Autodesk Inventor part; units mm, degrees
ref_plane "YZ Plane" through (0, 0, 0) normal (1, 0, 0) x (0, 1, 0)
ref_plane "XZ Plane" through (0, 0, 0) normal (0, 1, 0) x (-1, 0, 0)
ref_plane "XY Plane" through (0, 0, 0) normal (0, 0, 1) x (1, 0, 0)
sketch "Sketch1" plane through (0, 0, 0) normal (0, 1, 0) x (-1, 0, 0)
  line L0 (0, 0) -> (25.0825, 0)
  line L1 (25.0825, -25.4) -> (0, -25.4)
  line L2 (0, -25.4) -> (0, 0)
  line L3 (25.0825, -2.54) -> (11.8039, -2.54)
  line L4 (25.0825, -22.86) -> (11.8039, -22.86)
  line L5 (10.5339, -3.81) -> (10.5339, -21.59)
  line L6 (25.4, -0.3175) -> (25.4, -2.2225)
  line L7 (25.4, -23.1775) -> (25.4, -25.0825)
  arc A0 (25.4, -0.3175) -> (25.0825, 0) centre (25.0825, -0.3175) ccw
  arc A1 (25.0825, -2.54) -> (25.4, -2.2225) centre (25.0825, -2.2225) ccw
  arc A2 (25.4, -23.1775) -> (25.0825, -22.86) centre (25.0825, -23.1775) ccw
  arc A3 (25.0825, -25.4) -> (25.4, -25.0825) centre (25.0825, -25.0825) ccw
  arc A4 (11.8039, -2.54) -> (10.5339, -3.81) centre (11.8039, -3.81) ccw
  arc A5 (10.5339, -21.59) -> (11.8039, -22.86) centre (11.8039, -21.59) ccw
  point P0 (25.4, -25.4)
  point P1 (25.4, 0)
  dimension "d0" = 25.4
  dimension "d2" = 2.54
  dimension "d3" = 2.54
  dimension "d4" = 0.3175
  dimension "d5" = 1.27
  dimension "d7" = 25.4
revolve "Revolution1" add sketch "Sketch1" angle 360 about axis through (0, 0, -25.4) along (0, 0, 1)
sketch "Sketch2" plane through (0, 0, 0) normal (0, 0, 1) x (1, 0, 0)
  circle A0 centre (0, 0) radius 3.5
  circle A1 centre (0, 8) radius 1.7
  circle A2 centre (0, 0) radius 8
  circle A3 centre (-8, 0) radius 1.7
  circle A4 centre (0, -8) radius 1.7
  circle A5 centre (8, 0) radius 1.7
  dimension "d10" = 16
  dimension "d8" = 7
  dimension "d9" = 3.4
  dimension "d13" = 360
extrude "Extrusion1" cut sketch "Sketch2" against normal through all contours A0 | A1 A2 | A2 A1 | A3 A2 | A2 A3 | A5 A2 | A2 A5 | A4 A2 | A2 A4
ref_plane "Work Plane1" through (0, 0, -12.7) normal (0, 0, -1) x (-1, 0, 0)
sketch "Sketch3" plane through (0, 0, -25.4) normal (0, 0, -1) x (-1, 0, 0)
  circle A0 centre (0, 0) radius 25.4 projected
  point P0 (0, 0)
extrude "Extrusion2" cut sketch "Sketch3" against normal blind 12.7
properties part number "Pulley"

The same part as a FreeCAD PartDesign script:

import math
import FreeCAD as App
import Part
import Sketcher

V = App.Vector
Q = App.Units.Quantity

doc = App.newDocument("Part")
params = doc.addObject("Spreadsheet::Sheet", "Params")
for row, (alias, value) in enumerate([
    ("sketch1_height", "1 in"),
    ("sketch1_radius", "0.05 in"),
    ("revolution_angle", "360 deg"),
    ("sketch3_diameter", "2 in"),
    ("pocket2_length", "0.5 in"),
], start=1):
    params.set(f"A{row}", alias)
    params.set(f"B{row}", "=" + value)
    params.setAlias(f"B{row}", alias)

body = doc.addObject("PartDesign::Body", "Body")

# Sketch on XZ plane
sketch1 = doc.addObject("Sketcher::SketchObject", "Sketch")
body.addObject(sketch1)
sketch1.AttachmentSupport = (doc.XZ_Plane, [""])
sketch1.MapMode = "FlatFace"
sketch1.addGeometry(Part.LineSegment(V(-25.08, 0, 0), V(0, 0, 0)), False)
sketch1.addGeometry(Part.LineSegment(V(0, 0, 0), V(0, -25.4, 0)), False)
sketch1.addGeometry(Part.LineSegment(V(0, -25.4, 0), V(-25.08, -25.4, 0)), False)
sketch1.addGeometry(Part.ArcOfCircle(Part.Circle(V(-25.08, -25.08, 0), V(0, 0, 1), 0.32), math.radians(180), math.radians(270)), False)
sketch1.addGeometry(Part.LineSegment(V(-25.4, -25.08, 0), V(-25.4, -23.18, 0)), False)
sketch1.addGeometry(Part.ArcOfCircle(Part.Circle(V(-25.08, -23.18, 0), V(0, 0, 1), 0.32), math.radians(90), math.radians(180)), False)
sketch1.addGeometry(Part.LineSegment(V(-25.08, -22.86, 0), V(-11.8, -22.86, 0)), False)
sketch1.addGeometry(Part.ArcOfCircle(Part.Circle(V(-11.8, -21.59, 0), V(0, 0, 1), 1.27), math.radians(-90), math.radians(0)), False)
sketch1.addGeometry(Part.LineSegment(V(-10.53, -21.59, 0), V(-10.53, -3.81, 0)), False)
sketch1.addGeometry(Part.ArcOfCircle(Part.Circle(V(-11.8, -3.81, 0), V(0, 0, 1), 1.27), math.radians(0), math.radians(90)), False)
sketch1.addGeometry(Part.LineSegment(V(-11.8, -2.54, 0), V(-25.08, -2.54, 0)), False)
sketch1.addGeometry(Part.ArcOfCircle(Part.Circle(V(-25.08, -2.22, 0), V(0, 0, 1), 0.32), math.radians(180), math.radians(270)), False)
sketch1.addGeometry(Part.LineSegment(V(-25.4, -2.22, 0), V(-25.4, -0.32, 0)), False)
sketch1.addGeometry(Part.ArcOfCircle(Part.Circle(V(-25.08, -0.32, 0), V(0, 0, 1), 0.32), math.radians(90), math.radians(180)), False)
sketch1.addConstraint(Sketcher.Constraint("Coincident", 0, 2, 1, 1))
sketch1.addConstraint(Sketcher.Constraint("Coincident", 1, 2, 2, 1))
sketch1.addConstraint(Sketcher.Constraint("Tangent", 2, 2, 3, 2))
sketch1.addConstraint(Sketcher.Constraint("Tangent", 3, 1, 4, 1))
sketch1.addConstraint(Sketcher.Constraint("Tangent", 4, 2, 5, 2))
sketch1.addConstraint(Sketcher.Constraint("Tangent", 5, 1, 6, 1))
sketch1.addConstraint(Sketcher.Constraint("Tangent", 6, 2, 7, 1))
sketch1.addConstraint(Sketcher.Constraint("Tangent", 7, 2, 8, 1))
sketch1.addConstraint(Sketcher.Constraint("Tangent", 8, 2, 9, 1))
sketch1.addConstraint(Sketcher.Constraint("Tangent", 9, 2, 10, 1))
sketch1.addConstraint(Sketcher.Constraint("Tangent", 10, 2, 11, 2))
sketch1.addConstraint(Sketcher.Constraint("Tangent", 11, 1, 12, 1))
sketch1.addConstraint(Sketcher.Constraint("Tangent", 12, 2, 13, 2))
sketch1.addConstraint(Sketcher.Constraint("Tangent", 13, 1, 0, 1))
sketch1.addConstraint(Sketcher.Constraint("Horizontal", 0))
sketch1.addConstraint(Sketcher.Constraint("Vertical", 1))
sketch1.addConstraint(Sketcher.Constraint("Horizontal", 2))
sketch1.addConstraint(Sketcher.Constraint("Vertical", 4))
sketch1.addConstraint(Sketcher.Constraint("Horizontal", 6))
sketch1.addConstraint(Sketcher.Constraint("Vertical", 8))
sketch1.addConstraint(Sketcher.Constraint("Horizontal", 10))
sketch1.addConstraint(Sketcher.Constraint("Vertical", 12))
sketch1.addConstraint(Sketcher.Constraint("Coincident", 0, 2, -1, 1))
sketch1.addConstraint(Sketcher.Constraint("Equal", 3, 5))
sketch1.addConstraint(Sketcher.Constraint("Equal", 7, 9))
sketch1.addConstraint(Sketcher.Constraint("Equal", 5, 11))
sketch1.addConstraint(Sketcher.Constraint("Equal", 11, 13))
sketch1.addConstraint(Sketcher.Constraint("Vertical", 5, 3, 11, 3))
sketch1.addConstraint(Sketcher.Constraint("Equal", 4, 12))
sketch1.addConstraint(Sketcher.Constraint("DistanceY", 1, 2, 1, 1, Q("1 in")))
sketch1.addConstraint(Sketcher.Constraint("Radius", 7, Q("0.05 in")))
sketch1.addConstraint(Sketcher.Constraint("DistanceX", 3, 1, -1, 1, Q("1 in")))
sketch1.addConstraint(Sketcher.Constraint("DistanceY", 9, 2, -1, 1, Q("0.1 in")))
sketch1.addConstraint(Sketcher.Constraint("Radius", 3, Q("0.0125 in")))
sketch1.addConstraint(Sketcher.Constraint("DistanceX", 6, 1, 6, 2, Q("13.2786 mm")))
sketch1.setExpression("Constraints[29]", "Params.sketch1_height")
sketch1.setExpression("Constraints[30]", "Params.sketch1_radius")
revolution = doc.addObject("PartDesign::Revolution", "Revolution")
body.addObject(revolution)
revolution.Profile = sketch1
revolution.ReferenceAxis = (sketch1, ["V_Axis"])
revolution.setExpression("Angle", "Params.revolution_angle")

# Sketch on XY plane
sketch2 = doc.addObject("Sketcher::SketchObject", "Sketch001")
body.addObject(sketch2)
sketch2.AttachmentSupport = (doc.XY_Plane, [""])
sketch2.MapMode = "FlatFace"
sketch2.addGeometry(Part.Circle(V(0, 0, 0), V(0, 0, 1), 3.5), False)
sketch2.addGeometry(Part.Circle(V(0, 8, 0), V(0, 0, 1), 1.7), False)
sketch2.addGeometry(Part.Circle(V(-8, 0, 0), V(0, 0, 1), 1.7), False)
sketch2.addGeometry(Part.Circle(V(8, 0, 0), V(0, 0, 1), 1.7), False)
sketch2.addGeometry(Part.Circle(V(0, -8, 0), V(0, 0, 1), 1.7), False)
sketch2.addConstraint(Sketcher.Constraint("Coincident", 0, 3, -1, 1))
sketch2.addConstraint(Sketcher.Constraint("Equal", 1, 2))
sketch2.addConstraint(Sketcher.Constraint("Equal", 2, 3))
sketch2.addConstraint(Sketcher.Constraint("Equal", 3, 4))
sketch2.addConstraint(Sketcher.Constraint("Symmetric", 2, 3, 3, 3, -1, 1))
sketch2.addConstraint(Sketcher.Constraint("Symmetric", 1, 3, 4, 3, -1, 1))
sketch2.addConstraint(Sketcher.Constraint("PointOnObject", 1, 3, -2))
sketch2.addConstraint(Sketcher.Constraint("PointOnObject", 2, 3, -1))
sketch2.addConstraint(Sketcher.Constraint("Diameter", 0, Q("0.2756 in")))
sketch2.addConstraint(Sketcher.Constraint("Diameter", 1, Q("3.4 mm")))
sketch2.addConstraint(Sketcher.Constraint("DistanceX", 2, 3, 3, 3, Q("16 mm")))
sketch2.addConstraint(Sketcher.Constraint("DistanceY", 4, 3, 1, 3, Q("16 mm")))
pocket1 = doc.addObject("PartDesign::Pocket", "Pocket")
body.addObject(pocket1)
pocket1.Profile = sketch2
pocket1.Type = "ThroughAll"

# Sketch on XY plane
sketch3 = doc.addObject("Sketcher::SketchObject", "Sketch002")
body.addObject(sketch3)
sketch3.AttachmentSupport = (doc.XY_Plane, [""])
sketch3.MapMode = "FlatFace"
sketch3.AttachmentOffset = App.Placement(V(0, 0, -1 * 25.4), App.Rotation())
sketch3.addGeometry(Part.Circle(V(0, 0, 0), V(0, 0, 1), 25), False)
sketch3.addConstraint(Sketcher.Constraint("Coincident", 0, 3, -1, 1))
sketch3.addConstraint(Sketcher.Constraint("Diameter", 0, Q("2 in")))
sketch3.setExpression("Constraints[1]", "Params.sketch3_diameter")
pocket2 = doc.addObject("PartDesign::Pocket", "Pocket001")
body.addObject(pocket2)
pocket2.Profile = sketch3
pocket2.setExpression("Length", "Params.pocket2_length")
pocket2.Reversed = True

doc.recompute()
